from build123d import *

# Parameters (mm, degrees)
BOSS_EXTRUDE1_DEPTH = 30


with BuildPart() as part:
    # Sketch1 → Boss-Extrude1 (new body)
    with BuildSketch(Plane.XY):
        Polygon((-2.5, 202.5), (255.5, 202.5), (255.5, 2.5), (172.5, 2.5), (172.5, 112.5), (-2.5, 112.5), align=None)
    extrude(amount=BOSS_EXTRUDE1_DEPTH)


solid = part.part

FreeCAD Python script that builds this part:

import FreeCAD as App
import Part
import Sketcher
from FreeCAD import Vector

doc = App.newDocument("Part")
body = doc.addObject("PartDesign::Body", "Body")

# Sketch on XY plane
sketch1 = body.newObject("Sketcher::SketchObject", "Sketch")
sketch1.AttachmentSupport = (doc.getObject("XY_Plane"), [""])
sketch1.MapMode = "FlatFace"
sketch1.addGeometry([
    Part.LineSegment(Vector(256, 202, 0), Vector(-2, 202, 0)),  # 0
    Part.LineSegment(Vector(-2, 202, 0), Vector(-2, 112, 0)),  # 1
    Part.LineSegment(Vector(-2, 112, 0), Vector(172, 112, 0)),  # 2
    Part.LineSegment(Vector(172, 112, 0), Vector(172, 2, 0)),  # 3
    Part.LineSegment(Vector(172, 2, 0), Vector(256, 2, 0)),  # 4
    Part.LineSegment(Vector(256, 2, 0), Vector(256, 202, 0)),  # 5
], False)
sketch1.addConstraint([
    Sketcher.Constraint("Coincident", 0, 2, 1, 1),
    Sketcher.Constraint("Coincident", 1, 2, 2, 1),
    Sketcher.Constraint("Coincident", 2, 2, 3, 1),
    Sketcher.Constraint("Coincident", 3, 2, 4, 1),
    Sketcher.Constraint("Coincident", 4, 2, 5, 1),
    Sketcher.Constraint("Coincident", 5, 2, 0, 1),
    Sketcher.Constraint("Horizontal", 0),
    Sketcher.Constraint("Vertical", 1),
    Sketcher.Constraint("Horizontal", 2),
    Sketcher.Constraint("Vertical", 3),
    Sketcher.Constraint("Horizontal", 4),
    Sketcher.Constraint("Vertical", 5),
    Sketcher.Constraint("DistanceX", 0, 2, 0, 1, 258.0),
    Sketcher.Constraint("DistanceX", 2, 1, 2, 2, 175.0),
    Sketcher.Constraint("DistanceY", 1, 2, 1, 1, 90.0),
    Sketcher.Constraint("DistanceY", 3, 2, 3, 1, 110.0),
    Sketcher.Constraint("DistanceX", 0, 2, -1, 1, 2.5),
    Sketcher.Constraint("DistanceY", -1, 1, 0, 2, 202.5),
])
pad1 = body.newObject("PartDesign::Pad", "Pad")
pad1.Profile = sketch1
pad1.Length = 30

doc.recompute()
